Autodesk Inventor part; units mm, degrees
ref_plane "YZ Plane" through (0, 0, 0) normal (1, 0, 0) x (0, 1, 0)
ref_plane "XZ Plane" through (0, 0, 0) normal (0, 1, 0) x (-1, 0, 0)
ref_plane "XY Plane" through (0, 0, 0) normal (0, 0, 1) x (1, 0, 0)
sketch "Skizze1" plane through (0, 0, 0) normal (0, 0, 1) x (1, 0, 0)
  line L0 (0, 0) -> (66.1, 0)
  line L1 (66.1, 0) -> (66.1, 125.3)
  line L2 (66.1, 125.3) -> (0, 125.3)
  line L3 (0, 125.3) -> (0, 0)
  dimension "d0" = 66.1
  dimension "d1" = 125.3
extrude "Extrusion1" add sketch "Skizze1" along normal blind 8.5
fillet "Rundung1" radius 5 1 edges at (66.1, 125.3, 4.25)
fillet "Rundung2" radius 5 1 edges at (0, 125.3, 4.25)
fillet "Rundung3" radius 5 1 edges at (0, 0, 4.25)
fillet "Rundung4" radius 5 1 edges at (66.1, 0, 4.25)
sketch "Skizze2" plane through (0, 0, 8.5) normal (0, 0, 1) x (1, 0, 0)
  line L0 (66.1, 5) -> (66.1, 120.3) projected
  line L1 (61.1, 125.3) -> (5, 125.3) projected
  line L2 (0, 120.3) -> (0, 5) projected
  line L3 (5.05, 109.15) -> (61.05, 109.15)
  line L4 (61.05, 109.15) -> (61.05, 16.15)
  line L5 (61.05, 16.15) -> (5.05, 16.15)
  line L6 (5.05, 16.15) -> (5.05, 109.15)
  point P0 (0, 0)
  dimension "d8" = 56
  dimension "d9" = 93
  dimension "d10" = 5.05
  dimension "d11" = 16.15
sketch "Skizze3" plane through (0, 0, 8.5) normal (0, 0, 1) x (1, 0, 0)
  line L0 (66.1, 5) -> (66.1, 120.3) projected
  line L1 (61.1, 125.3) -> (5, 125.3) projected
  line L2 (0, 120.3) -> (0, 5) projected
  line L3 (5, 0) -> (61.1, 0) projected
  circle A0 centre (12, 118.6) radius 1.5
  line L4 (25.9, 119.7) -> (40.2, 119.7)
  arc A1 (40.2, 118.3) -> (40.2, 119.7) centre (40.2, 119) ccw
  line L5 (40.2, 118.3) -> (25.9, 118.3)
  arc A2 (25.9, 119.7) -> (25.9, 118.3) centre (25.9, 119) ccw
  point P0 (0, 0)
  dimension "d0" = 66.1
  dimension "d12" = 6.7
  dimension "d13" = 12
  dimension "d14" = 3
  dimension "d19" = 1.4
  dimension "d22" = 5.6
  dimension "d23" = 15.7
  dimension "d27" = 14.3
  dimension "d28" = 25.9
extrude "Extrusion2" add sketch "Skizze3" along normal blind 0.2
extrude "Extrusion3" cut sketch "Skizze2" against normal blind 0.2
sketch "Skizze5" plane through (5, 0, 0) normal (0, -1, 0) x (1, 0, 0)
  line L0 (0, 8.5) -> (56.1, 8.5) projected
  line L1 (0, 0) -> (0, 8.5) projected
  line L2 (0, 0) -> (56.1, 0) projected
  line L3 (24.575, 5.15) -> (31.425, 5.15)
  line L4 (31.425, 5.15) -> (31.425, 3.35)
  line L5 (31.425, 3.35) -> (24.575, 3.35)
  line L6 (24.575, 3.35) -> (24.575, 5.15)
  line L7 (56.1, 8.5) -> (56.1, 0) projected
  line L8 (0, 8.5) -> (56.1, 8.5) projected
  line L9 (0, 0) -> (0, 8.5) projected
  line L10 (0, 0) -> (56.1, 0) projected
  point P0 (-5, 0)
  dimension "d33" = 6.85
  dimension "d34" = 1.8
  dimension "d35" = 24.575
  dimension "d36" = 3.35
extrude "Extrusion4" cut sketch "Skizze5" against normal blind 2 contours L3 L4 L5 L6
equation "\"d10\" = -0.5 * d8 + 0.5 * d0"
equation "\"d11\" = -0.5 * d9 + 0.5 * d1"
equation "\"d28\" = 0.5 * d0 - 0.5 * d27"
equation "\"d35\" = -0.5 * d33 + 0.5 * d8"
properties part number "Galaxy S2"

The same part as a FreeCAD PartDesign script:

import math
import FreeCAD as App
import Part
import Sketcher
from FreeCAD import Vector


def edges_at(feature, points):
    """Names of the edges that pass closest to the given points."""
    edges = feature.Shape.Edges
    near = lambda p: min(range(len(edges)), key=lambda i: edges[i].distToShape(Part.Vertex(*p))[0])
    return sorted({f"Edge{near(p) + 1}" for p in points})

doc = App.newDocument("Part")
body = doc.addObject("PartDesign::Body", "Body")

# Sketch on XY plane
sketch1 = body.newObject("Sketcher::SketchObject", "Sketch")
sketch1.AttachmentSupport = (doc.getObject("XY_Plane"), [""])
sketch1.MapMode = "FlatFace"
sketch1.addGeometry([
    Part.LineSegment(Vector(0, 125.3, 0), Vector(0, 0, 0)),
    Part.LineSegment(Vector(0, 0, 0), Vector(66.1, 0, 0)),
    Part.LineSegment(Vector(66.1, 0, 0), Vector(66.1, 125.3, 0)),
    Part.LineSegment(Vector(66.1, 125.3, 0), Vector(0, 125.3, 0)),
], False)
sketch1.addConstraint([
    Sketcher.Constraint("Coincident", 0, 2, 1, 1),
    Sketcher.Constraint("Coincident", 1, 2, 2, 1),
    Sketcher.Constraint("Coincident", 2, 2, 3, 1),
    Sketcher.Constraint("Coincident", 3, 2, 0, 1),
    Sketcher.Constraint("Vertical", 0),
    Sketcher.Constraint("Horizontal", 1),
    Sketcher.Constraint("Vertical", 2),
    Sketcher.Constraint("Horizontal", 3),
    Sketcher.Constraint("Coincident", 0, 2, -1, 1),
    Sketcher.Constraint("DistanceX", 1, 1, 1, 2, 66.1),
    Sketcher.Constraint("DistanceY", 0, 2, 0, 1, 125.3),
])
pad1 = body.newObject("PartDesign::Pad", "Pad")
pad1.Profile = sketch1
pad1.Length = 8.5
doc.recompute()

fillet = body.newObject("PartDesign::Fillet", "Fillet")
fillet.Base = (pad1, edges_at(pad1, [(66.1, 125.3, 4.25)]))
fillet.Radius = 5
doc.recompute()

fillet2 = body.newObject("PartDesign::Fillet", "Fillet001")
fillet2.Base = (fillet, edges_at(fillet, [(0, 125.3, 4.25)]))
fillet2.Radius = 5
doc.recompute()

fillet3 = body.newObject("PartDesign::Fillet", "Fillet002")
fillet3.Base = (fillet2, edges_at(fillet2, [(0, 0, 4.25)]))
fillet3.Radius = 5
doc.recompute()

fillet4 = body.newObject("PartDesign::Fillet", "Fillet003")
fillet4.Base = (fillet3, edges_at(fillet3, [(66.1, 0, 4.25)]))
fillet4.Radius = 5

# Sketch on XY plane
sketch2 = body.newObject("Sketcher::SketchObject", "Sketch001")
sketch2.AttachmentSupport = (doc.getObject("XY_Plane"), [""])
sketch2.MapMode = "FlatFace"
sketch2.AttachmentOffset = App.Placement(Vector(0, 0, 8.5), App.Rotation())
sketch2.addGeometry([
    Part.Circle(Vector(12, 118.6, 0), Vector(0, 0, 1), 1.5),  # 0
    Part.LineSegment(Vector(40.2, 119.7, 0), Vector(25.9, 119.7, 0)),  # 1
    Part.ArcOfCircle(Part.Circle(Vector(25.9, 119, 0), Vector(0, 0, 1), 0.7), math.radians(90), math.radians(270)),  # 2
    Part.LineSegment(Vector(25.9, 118.3, 0), Vector(40.2, 118.3, 0)),  # 3
    Part.ArcOfCircle(Part.Circle(Vector(40.2, 119, 0), Vector(0, 0, 1), 0.7), math.radians(-90), math.radians(90)),  # 4
], False)
sketch2.addConstraint([
    Sketcher.Constraint("Tangent", 1, 2, 2, 1),
    Sketcher.Constraint("Tangent", 2, 2, 3, 1),
    Sketcher.Constraint("Tangent", 3, 2, 4, 1),
    Sketcher.Constraint("Tangent", 4, 2, 1, 1),
    Sketcher.Constraint("Horizontal", 1),
    Sketcher.Constraint("Horizontal", 3),
    Sketcher.Constraint("Diameter", 0, 3.0),
    Sketcher.Constraint("Radius", 2, 0.7),
    Sketcher.Constraint("DistanceX", 1, 2, 1, 1, 14.3),
    Sketcher.Constraint("DistanceX", -1, 1, 0, 3, 12.0),
    Sketcher.Constraint("DistanceX", -1, 1, 2, 3, 25.9),
    Sketcher.Constraint("DistanceY", -1, 1, 2, 3, 119.0),
    Sketcher.Constraint("DistanceY", -1, 1, 0, 3, 118.6),
])
pad2 = body.newObject("PartDesign::Pad", "Pad001")
pad2.Profile = sketch2
pad2.Length = 0.2

# Sketch on XY plane
sketch3 = body.newObject("Sketcher::SketchObject", "Sketch002")
sketch3.AttachmentSupport = (doc.getObject("XY_Plane"), [""])
sketch3.MapMode = "FlatFace"
sketch3.AttachmentOffset = App.Placement(Vector(0, 0, 8.5), App.Rotation())
sketch3.addGeometry([
    Part.LineSegment(Vector(61.05, 109.15, 0), Vector(5.05, 109.15, 0)),
    Part.LineSegment(Vector(5.05, 109.15, 0), Vector(5.05, 16.15, 0)),
    Part.LineSegment(Vector(5.05, 16.15, 0), Vector(61.05, 16.15, 0)),
    Part.LineSegment(Vector(61.05, 16.15, 0), Vector(61.05, 109.15, 0)),
], False)
sketch3.addConstraint([
    Sketcher.Constraint("Coincident", 0, 2, 1, 1),
    Sketcher.Constraint("Coincident", 1, 2, 2, 1),
    Sketcher.Constraint("Coincident", 2, 2, 3, 1),
    Sketcher.Constraint("Coincident", 3, 2, 0, 1),
    Sketcher.Constraint("Horizontal", 0),
    Sketcher.Constraint("Vertical", 1),
    Sketcher.Constraint("Horizontal", 2),
    Sketcher.Constraint("Vertical", 3),
    Sketcher.Constraint("DistanceX", 0, 2, 0, 1, 56.0),
    Sketcher.Constraint("DistanceY", 1, 2, 1, 1, 93.0),
    Sketcher.Constraint("DistanceX", -1, 1, 0, 2, 5.05),
    Sketcher.Constraint("DistanceY", -1, 1, 1, 2, 16.15),
])
pocket1 = body.newObject("PartDesign::Pocket", "Pocket")
pocket1.Profile = sketch3
pocket1.Length = 0.2

# Sketch on XZ plane
sketch4 = body.newObject("Sketcher::SketchObject", "Sketch003")
sketch4.AttachmentSupport = (doc.getObject("XZ_Plane"), [""])
sketch4.MapMode = "FlatFace"
sketch4.addGeometry([
    Part.LineSegment(Vector(36.425, 5.15, 0), Vector(29.575, 5.15, 0)),
    Part.LineSegment(Vector(29.575, 5.15, 0), Vector(29.575, 3.35, 0)),
    Part.LineSegment(Vector(29.575, 3.35, 0), Vector(36.425, 3.35, 0)),
    Part.LineSegment(Vector(36.425, 3.35, 0), Vector(36.425, 5.15, 0)),
], False)
sketch4.addConstraint([
    Sketcher.Constraint("Coincident", 0, 2, 1, 1),
    Sketcher.Constraint("Coincident", 1, 2, 2, 1),
    Sketcher.Constraint("Coincident", 2, 2, 3, 1),
    Sketcher.Constraint("Coincident", 3, 2, 0, 1),
    Sketcher.Constraint("Horizontal", 0),
    Sketcher.Constraint("Vertical", 1),
    Sketcher.Constraint("Horizontal", 2),
    Sketcher.Constraint("Vertical", 3),
    Sketcher.Constraint("DistanceY", 1, 2, 1, 1, 1.8),
    Sketcher.Constraint("DistanceX", 0, 2, 0, 1, 6.85),
    Sketcher.Constraint("DistanceY", -1, 1, 1, 2, 3.35),
    Sketcher.Constraint("DistanceX", -1, 1, 0, 2, 29.575),
])
pocket2 = body.newObject("PartDesign::Pocket", "Pocket001")
pocket2.Profile = sketch4
pocket2.Length = 2

doc.recompute()
